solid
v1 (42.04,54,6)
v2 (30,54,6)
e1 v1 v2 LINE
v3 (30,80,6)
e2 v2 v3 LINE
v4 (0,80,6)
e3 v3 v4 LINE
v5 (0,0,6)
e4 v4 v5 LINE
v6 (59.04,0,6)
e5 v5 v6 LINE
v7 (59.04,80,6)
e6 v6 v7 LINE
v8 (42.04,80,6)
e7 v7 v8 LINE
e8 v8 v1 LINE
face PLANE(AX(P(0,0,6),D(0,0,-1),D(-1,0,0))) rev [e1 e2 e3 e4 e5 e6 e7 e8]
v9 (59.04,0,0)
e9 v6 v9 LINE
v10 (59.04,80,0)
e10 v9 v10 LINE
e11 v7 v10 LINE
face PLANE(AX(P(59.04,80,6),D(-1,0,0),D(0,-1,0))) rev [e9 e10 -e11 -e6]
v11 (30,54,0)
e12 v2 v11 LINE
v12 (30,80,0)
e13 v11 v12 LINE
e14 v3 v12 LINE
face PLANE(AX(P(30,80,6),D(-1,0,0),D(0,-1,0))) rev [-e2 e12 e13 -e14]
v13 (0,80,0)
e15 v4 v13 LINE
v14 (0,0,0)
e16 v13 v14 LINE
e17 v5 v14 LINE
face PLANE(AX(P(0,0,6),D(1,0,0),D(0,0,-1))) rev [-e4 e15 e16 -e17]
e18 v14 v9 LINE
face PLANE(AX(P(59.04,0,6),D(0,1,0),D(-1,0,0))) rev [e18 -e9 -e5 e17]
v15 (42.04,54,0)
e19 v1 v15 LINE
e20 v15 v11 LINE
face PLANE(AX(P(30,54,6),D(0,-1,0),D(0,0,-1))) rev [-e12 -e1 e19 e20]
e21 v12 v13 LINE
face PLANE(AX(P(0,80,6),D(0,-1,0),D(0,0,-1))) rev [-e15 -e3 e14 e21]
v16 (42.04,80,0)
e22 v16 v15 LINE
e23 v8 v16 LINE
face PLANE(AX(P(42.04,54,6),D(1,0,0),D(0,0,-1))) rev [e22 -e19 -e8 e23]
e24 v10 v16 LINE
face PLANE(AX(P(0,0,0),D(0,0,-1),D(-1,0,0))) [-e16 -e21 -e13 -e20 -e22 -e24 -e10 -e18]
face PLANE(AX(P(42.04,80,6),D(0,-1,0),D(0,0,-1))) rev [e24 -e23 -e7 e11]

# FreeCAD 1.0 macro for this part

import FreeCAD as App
import Part
import Sketcher

V = App.Vector
Q = App.Units.Quantity


def add_polygon(sketch, points):
    """Adds a closed chain of lines whose ends are joined by coincident constraints."""
    first, n = sketch.GeometryCount, len(points)
    for a, b in zip(points, points[1:] + points[:1]):
        sketch.addGeometry(Part.LineSegment(App.Vector(*a, 0), App.Vector(*b, 0)), False)
    for i in range(n):
        sketch.addConstraint(Sketcher.Constraint("Coincident", first + i, 2, first + (i + 1) % n, 1))

doc = App.newDocument("Part")
body = doc.addObject("PartDesign::Body", "Body")

# Sketch on XY plane
sketch1 = body.newObject("Sketcher::SketchObject", "Sketch")
sketch1.AttachmentSupport = (doc.getObject("XY_Plane"), [""])
sketch1.MapMode = "FlatFace"
add_polygon(sketch1, [(0, 80), (0, 0), (59, 0), (59, 80), (42, 80), (42, 54), (30, 54), (30, 80)])  # lines 0-7
sketch1.addConstraint([
    Sketcher.Constraint("Vertical", 0),
    Sketcher.Constraint("Horizontal", 1),
    Sketcher.Constraint("Vertical", 2),
    Sketcher.Constraint("Horizontal", 3),
    Sketcher.Constraint("Vertical", 4),
    Sketcher.Constraint("Horizontal", 5),
    Sketcher.Constraint("Vertical", 6),
    Sketcher.Constraint("Horizontal", 7),
    Sketcher.Constraint("Coincident", 0, 2, -1, 1),
    Sketcher.Constraint("Horizontal", 3, 2, 6, 2),
    Sketcher.Constraint("DistanceX", 3, 2, 3, 1, Q("17 mm")),
    Sketcher.Constraint("DistanceX", 7, 2, 7, 1, Q("30 mm")),
    Sketcher.Constraint("DistanceY", 0, 2, 0, 1, Q("80 mm")),
    Sketcher.Constraint("DistanceY", 4, 2, 4, 1, Q("26 mm")),
    Sketcher.Constraint("DistanceX", 1, 1, 1, 2, Q("59.04 mm")),
])
pad1 = body.newObject("PartDesign::Pad", "Pad")
pad1.Profile = sketch1
pad1.Length = 6

doc.recompute()
